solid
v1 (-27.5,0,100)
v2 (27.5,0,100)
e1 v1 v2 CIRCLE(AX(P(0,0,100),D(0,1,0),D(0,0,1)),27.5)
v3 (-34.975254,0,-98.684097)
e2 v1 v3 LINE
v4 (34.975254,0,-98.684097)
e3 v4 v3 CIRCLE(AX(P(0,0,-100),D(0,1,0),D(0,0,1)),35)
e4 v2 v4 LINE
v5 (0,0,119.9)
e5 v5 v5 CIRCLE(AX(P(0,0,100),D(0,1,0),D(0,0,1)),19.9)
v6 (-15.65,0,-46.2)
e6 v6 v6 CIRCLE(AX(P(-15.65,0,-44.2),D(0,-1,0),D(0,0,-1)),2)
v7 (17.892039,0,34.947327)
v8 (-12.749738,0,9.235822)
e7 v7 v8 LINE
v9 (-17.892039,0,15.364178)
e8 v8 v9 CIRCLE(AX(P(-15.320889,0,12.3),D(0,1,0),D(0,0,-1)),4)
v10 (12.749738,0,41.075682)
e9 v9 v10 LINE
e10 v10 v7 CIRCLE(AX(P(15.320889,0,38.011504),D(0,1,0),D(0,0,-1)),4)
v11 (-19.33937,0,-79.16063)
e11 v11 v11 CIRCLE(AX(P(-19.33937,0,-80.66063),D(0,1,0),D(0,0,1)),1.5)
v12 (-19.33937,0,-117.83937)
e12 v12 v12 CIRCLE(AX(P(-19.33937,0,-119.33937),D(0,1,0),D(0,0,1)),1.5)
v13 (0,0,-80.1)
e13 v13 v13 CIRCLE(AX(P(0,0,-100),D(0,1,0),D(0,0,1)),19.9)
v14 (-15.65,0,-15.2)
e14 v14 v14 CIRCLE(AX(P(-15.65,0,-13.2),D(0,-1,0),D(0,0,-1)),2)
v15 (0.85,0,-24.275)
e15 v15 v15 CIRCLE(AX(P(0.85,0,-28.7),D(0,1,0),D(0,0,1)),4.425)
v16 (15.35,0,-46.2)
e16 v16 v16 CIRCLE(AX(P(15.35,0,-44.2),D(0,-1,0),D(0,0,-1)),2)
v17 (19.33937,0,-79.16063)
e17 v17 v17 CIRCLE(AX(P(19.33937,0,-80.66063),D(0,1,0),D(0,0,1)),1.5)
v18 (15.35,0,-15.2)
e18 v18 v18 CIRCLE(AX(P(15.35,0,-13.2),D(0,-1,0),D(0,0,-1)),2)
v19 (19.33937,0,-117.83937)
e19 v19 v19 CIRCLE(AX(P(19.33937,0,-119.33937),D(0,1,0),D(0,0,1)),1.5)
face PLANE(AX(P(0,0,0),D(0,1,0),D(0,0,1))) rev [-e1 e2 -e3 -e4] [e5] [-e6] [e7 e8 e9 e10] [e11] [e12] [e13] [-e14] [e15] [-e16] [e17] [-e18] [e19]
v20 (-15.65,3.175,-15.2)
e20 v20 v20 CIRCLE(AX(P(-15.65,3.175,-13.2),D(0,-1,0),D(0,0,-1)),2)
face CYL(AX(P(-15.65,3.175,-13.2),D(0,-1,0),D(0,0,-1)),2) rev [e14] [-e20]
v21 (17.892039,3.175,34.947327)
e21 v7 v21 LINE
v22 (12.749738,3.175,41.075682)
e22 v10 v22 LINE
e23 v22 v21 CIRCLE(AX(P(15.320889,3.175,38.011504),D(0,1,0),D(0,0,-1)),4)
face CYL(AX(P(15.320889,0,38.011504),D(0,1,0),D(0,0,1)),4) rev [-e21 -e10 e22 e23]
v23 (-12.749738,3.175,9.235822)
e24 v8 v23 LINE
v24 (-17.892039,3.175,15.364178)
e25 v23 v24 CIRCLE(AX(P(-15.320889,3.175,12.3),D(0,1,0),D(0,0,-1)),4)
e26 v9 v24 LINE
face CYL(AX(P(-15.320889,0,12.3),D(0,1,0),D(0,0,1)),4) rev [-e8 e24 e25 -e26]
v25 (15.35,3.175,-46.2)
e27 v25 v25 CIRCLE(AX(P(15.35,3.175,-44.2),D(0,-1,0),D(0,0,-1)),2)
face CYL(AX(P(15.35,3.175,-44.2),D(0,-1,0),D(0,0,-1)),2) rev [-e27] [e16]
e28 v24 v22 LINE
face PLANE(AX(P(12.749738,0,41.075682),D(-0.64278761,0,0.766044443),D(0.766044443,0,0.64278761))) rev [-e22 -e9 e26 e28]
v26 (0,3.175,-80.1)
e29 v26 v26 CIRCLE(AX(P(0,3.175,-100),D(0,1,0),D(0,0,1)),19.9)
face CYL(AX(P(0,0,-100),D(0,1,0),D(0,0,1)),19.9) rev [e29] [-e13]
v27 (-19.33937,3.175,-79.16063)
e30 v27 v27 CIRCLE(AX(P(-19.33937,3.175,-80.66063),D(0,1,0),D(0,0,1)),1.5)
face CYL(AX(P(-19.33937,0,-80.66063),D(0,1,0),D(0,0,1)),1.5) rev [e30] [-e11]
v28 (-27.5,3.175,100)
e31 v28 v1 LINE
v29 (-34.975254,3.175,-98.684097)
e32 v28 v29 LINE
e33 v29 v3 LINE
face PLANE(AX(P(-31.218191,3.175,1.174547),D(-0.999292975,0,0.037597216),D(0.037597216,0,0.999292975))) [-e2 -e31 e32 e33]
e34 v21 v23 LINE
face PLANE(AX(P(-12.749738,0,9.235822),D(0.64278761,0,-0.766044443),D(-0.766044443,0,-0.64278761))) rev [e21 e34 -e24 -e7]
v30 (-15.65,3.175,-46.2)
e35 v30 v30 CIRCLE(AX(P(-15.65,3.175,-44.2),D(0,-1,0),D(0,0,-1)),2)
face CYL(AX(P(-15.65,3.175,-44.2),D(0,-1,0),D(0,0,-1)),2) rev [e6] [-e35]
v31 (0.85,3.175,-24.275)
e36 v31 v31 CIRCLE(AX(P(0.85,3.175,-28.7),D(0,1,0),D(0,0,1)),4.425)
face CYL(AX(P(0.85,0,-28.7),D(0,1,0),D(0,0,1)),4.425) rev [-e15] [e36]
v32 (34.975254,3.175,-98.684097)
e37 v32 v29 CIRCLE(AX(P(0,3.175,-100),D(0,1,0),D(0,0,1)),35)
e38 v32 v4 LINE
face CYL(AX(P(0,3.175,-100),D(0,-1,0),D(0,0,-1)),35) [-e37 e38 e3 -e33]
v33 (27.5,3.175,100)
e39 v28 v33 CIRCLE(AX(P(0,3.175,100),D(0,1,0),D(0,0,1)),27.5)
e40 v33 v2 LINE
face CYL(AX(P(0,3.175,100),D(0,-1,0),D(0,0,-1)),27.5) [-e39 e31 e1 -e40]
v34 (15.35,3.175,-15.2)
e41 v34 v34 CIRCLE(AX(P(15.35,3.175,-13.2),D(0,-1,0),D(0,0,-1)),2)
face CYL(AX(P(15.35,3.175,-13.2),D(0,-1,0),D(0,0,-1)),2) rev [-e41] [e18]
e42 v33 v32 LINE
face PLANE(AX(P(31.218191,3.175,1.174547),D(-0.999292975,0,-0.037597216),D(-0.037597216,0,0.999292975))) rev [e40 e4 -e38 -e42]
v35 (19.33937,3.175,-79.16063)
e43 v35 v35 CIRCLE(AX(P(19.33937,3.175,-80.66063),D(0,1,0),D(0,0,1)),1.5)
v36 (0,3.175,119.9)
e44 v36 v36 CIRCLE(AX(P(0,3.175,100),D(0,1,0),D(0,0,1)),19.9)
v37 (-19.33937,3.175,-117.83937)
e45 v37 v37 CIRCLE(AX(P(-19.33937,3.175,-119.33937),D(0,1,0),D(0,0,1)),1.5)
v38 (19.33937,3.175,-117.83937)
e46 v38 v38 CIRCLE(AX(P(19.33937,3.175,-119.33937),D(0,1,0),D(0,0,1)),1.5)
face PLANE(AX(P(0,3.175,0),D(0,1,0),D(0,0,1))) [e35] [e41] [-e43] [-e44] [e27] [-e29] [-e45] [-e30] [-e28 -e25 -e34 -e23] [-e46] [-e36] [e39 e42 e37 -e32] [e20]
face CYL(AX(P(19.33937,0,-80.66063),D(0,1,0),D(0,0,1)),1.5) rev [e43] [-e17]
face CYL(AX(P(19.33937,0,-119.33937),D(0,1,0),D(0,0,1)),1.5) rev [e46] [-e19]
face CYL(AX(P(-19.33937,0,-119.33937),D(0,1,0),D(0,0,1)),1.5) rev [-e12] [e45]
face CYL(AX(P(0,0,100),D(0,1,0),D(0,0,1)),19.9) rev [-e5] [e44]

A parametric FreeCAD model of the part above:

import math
import FreeCAD as App
import Part
import Sketcher
Q = App.Units.Quantity

doc = App.newDocument("Part")
body = doc.addObject("PartDesign::Body", "Body")

# Sketch on XZ plane
sketch1 = doc.addObject("Sketcher::SketchObject", "Sketch")
body.addObject(sketch1)
sketch1.AttachmentSupport = (doc.XZ_Plane, [""])
sketch1.MapMode = "FlatFace"
sketch1.addGeometry(Part.LineSegment(App.Vector(-35, -99, 0), App.Vector(-28, 100, 0)), False)
sketch1.addGeometry(Part.ArcOfCircle(Part.Circle(App.Vector(0, 100, 0), App.Vector(0, 0, 1), 28), math.radians(0), math.radians(180)), False)
sketch1.addGeometry(Part.LineSegment(App.Vector(28, 100, 0), App.Vector(35, -99, 0)), False)
sketch1.addGeometry(Part.ArcOfCircle(Part.Circle(App.Vector(0, -100, 0), App.Vector(0, 0, 1), 35), math.radians(178), math.radians(362)), False)
sketch1.addConstraint(Sketcher.Constraint("Coincident", 0, 2, 1, 2))
sketch1.addConstraint(Sketcher.Constraint("Coincident", 1, 1, 2, 1))
sketch1.addConstraint(Sketcher.Constraint("Tangent", 2, 2, 3, 2))
sketch1.addConstraint(Sketcher.Constraint("Tangent", 3, 1, 0, 1))
sketch1.addConstraint(Sketcher.Constraint("Symmetric", 1, 3, 3, 3, -1, 1))
sketch1.addConstraint(Sketcher.Constraint("Symmetric", 0, 2, 1, 1, -2))
sketch1.addConstraint(Sketcher.Constraint("Horizontal", 1, 3, 0, 2))
sketch1.addConstraint(Sketcher.Constraint("Radius", 3, 35.0))
sketch1.addConstraint(Sketcher.Constraint("Radius", 1, 27.5))
sketch1.addConstraint(Sketcher.Constraint("DistanceY", -1, 1, 1, 3, 100.0))
pad1 = doc.addObject("PartDesign::Pad", "Pad")
body.addObject(pad1)
pad1.Profile = sketch1
pad1.Length = 3.175
pad1.Reversed = True

# Sketch on XZ plane
sketch2 = doc.addObject("Sketcher::SketchObject", "Sketch001")
body.addObject(sketch2)
sketch2.AttachmentSupport = (doc.XZ_Plane, [""])
sketch2.MapMode = "FlatFace"
sketch2.AttachmentOffset = App.Placement(App.Vector(0, 0, -3.175), App.Rotation())
sketch2.addGeometry(Part.Circle(App.Vector(0, 100, 0), App.Vector(0, 0, 1), 20), False)
sketch2.addGeometry(Part.Circle(App.Vector(0, -100, 0), App.Vector(0, 0, 1), 20), False)
sketch2.addConstraint(Sketcher.Constraint("Equal", 0, 1))
sketch2.addConstraint(Sketcher.Constraint("Symmetric", 0, 3, 1, 3, -1, 1))
sketch2.addConstraint(Sketcher.Constraint("PointOnObject", 0, 3, -2))
sketch2.addConstraint(Sketcher.Constraint("Diameter", 0, 39.8))
sketch2.addConstraint(Sketcher.Constraint("DistanceY", -1, 1, 0, 3, 100.0))
pocket1 = doc.addObject("PartDesign::Pocket", "Pocket")
body.addObject(pocket1)
pocket1.Profile = sketch2
pocket1.Type = "ThroughAll"
pocket1.Reversed = True

# Sketch on XZ plane
sketch3 = doc.addObject("Sketcher::SketchObject", "Sketch002")
body.addObject(sketch3)
sketch3.AttachmentSupport = (doc.XZ_Plane, [""])
sketch3.MapMode = "FlatFace"
sketch3.AttachmentOffset = App.Placement(App.Vector(0, 0, -3.175), App.Rotation())
sketch3.addGeometry(Part.Circle(App.Vector(19.3, -80.7, 0), App.Vector(0, 0, 1), 1.5), False)
sketch3.addGeometry(Part.Circle(App.Vector(19.3, -119.3, 0), App.Vector(0, 0, 1), 1.5), False)
sketch3.addGeometry(Part.Circle(App.Vector(-19.3, -119.3, 0), App.Vector(0, 0, 1), 1.5), False)
sketch3.addGeometry(Part.Circle(App.Vector(-19.3, -80.7, 0), App.Vector(0, 0, 1), 1.5), False)
sketch3.addConstraint(Sketcher.Constraint("Equal", 0, 1))
sketch3.addConstraint(Sketcher.Constraint("Equal", 1, 2))
sketch3.addConstraint(Sketcher.Constraint("Equal", 2, 3))
sketch3.addConstraint(Sketcher.Constraint("Symmetric", 1, 3, 2, 3, -2))
sketch3.addConstraint(Sketcher.Constraint("Symmetric", 0, 3, 3, 3, -2))
sketch3.addConstraint(Sketcher.Constraint("Vertical", 0, 3, 1, 3))
sketch3.addConstraint(Sketcher.Constraint("Diameter", 0, 3.0))
sketch3.addConstraint(Sketcher.Constraint("DistanceX", -1, 1, 0, 3, 19.33937))
sketch3.addConstraint(Sketcher.Constraint("DistanceY", 0, 3, -1, 1, 80.66063))
sketch3.addConstraint(Sketcher.Constraint("DistanceY", 1, 3, -1, 1, 119.33937))
pocket2 = doc.addObject("PartDesign::Pocket", "Pocket001")
body.addObject(pocket2)
pocket2.Profile = sketch3
pocket2.Type = "ThroughAll"
pocket2.Reversed = True

# Sketch on XZ plane
sketch4 = doc.addObject("Sketcher::SketchObject", "Sketch003")
body.addObject(sketch4)
sketch4.AttachmentSupport = (doc.XZ_Plane, [""])
sketch4.MapMode = "FlatFace"
sketch4.AttachmentOffset = App.Placement(App.Vector(0, 0, -3.175), App.Rotation())
sketch4.addGeometry(Part.Circle(App.Vector(0.8, -28.7, 0), App.Vector(0, 0, 1), 4.4), False)
sketch4.addConstraint(Sketcher.Constraint("Diameter", 0, 8.85))
sketch4.addConstraint(Sketcher.Constraint("DistanceY", 0, 3, -1, 1, 28.7))
sketch4.addConstraint(Sketcher.Constraint("DistanceX", -1, 1, 0, 3, 0.85))
pocket3 = doc.addObject("PartDesign::Pocket", "Pocket002")
body.addObject(pocket3)
pocket3.Profile = sketch4
pocket3.Type = "ThroughAll"
pocket3.Reversed = True

# Sketch on XZ plane
sketch5 = doc.addObject("Sketcher::SketchObject", "Sketch004")
body.addObject(sketch5)
sketch5.AttachmentSupport = (doc.XZ_Plane, [""])
sketch5.MapMode = "FlatFace"
sketch5.AttachmentOffset = App.Placement(App.Vector(0, 0, -3.175), App.Rotation())
sketch5.addGeometry(Part.LineSegment(App.Vector(-17.9, 15.4, 0), App.Vector(12.7, 41.1, 0)), False)
sketch5.addGeometry(Part.ArcOfCircle(Part.Circle(App.Vector(15.3, 38, 0), App.Vector(0, 0, 1), 4), math.radians(-50), math.radians(130)), False)
sketch5.addGeometry(Part.LineSegment(App.Vector(17.9, 34.9, 0), App.Vector(-12.7, 9.2, 0)), False)
sketch5.addGeometry(Part.ArcOfCircle(Part.Circle(App.Vector(-15.3, 12.3, 0), App.Vector(0, 0, 1), 4), math.radians(130), math.radians(310)), False)
sketch5.addConstraint(Sketcher.Constraint("Tangent", 0, 2, 1, 2))
sketch5.addConstraint(Sketcher.Constraint("Tangent", 1, 1, 2, 1))
sketch5.addConstraint(Sketcher.Constraint("Tangent", 2, 2, 3, 2))
sketch5.addConstraint(Sketcher.Constraint("Tangent", 3, 1, 0, 1))
sketch5.addConstraint(Sketcher.Constraint("Equal", 1, 3))
sketch5.addConstraint(Sketcher.Constraint("Radius", 1, 4.0))
sketch5.addConstraint(Sketcher.Constraint("Angle", 0, Q("40 deg")))
sketch5.addConstraint(Sketcher.Constraint("Distance", 0, 40.0))
sketch5.addConstraint(Sketcher.Constraint("DistanceY", -1, 1, 3, 3, 12.3))
sketch5.addConstraint(Sketcher.Constraint("DistanceX", -1, 1, 1, 3, 15.320889))
pocket4 = doc.addObject("PartDesign::Pocket", "Pocket003")
body.addObject(pocket4)
pocket4.Profile = sketch5
pocket4.Type = "ThroughAll"
pocket4.Reversed = True

# Sketch on XZ plane
sketch6 = doc.addObject("Sketcher::SketchObject", "Sketch005")
body.addObject(sketch6)
sketch6.AttachmentSupport = (doc.XZ_Plane, [""])
sketch6.MapMode = "FlatFace"
sketch6.addGeometry(Part.Circle(App.Vector(15.3, -13.2, 0), App.Vector(0, 0, 1), 2), False)
sketch6.addGeometry(Part.Circle(App.Vector(15.3, -44.2, 0), App.Vector(0, 0, 1), 2), False)
sketch6.addGeometry(Part.Circle(App.Vector(-15.7, -44.2, 0), App.Vector(0, 0, 1), 2), False)
sketch6.addGeometry(Part.Circle(App.Vector(-15.7, -13.2, 0), App.Vector(0, 0, 1), 2), False)
sketch6.addConstraint(Sketcher.Constraint("Equal", 0, 1))
sketch6.addConstraint(Sketcher.Constraint("Equal", 1, 2))
sketch6.addConstraint(Sketcher.Constraint("Equal", 2, 3))
sketch6.addConstraint(Sketcher.Constraint("Horizontal", 1, 3, 2, 3))
sketch6.addConstraint(Sketcher.Constraint("Horizontal", 0, 3, 3, 3))
sketch6.addConstraint(Sketcher.Constraint("Vertical", 0, 3, 1, 3))
sketch6.addConstraint(Sketcher.Constraint("Vertical", 2, 3, 3, 3))
sketch6.addConstraint(Sketcher.Constraint("Diameter", 0, 4.0))
sketch6.addConstraint(Sketcher.Constraint("DistanceY", 1, 3, 0, 3, 31.0))
sketch6.addConstraint(Sketcher.Constraint("DistanceX", 2, 3, 1, 3, 31.0))
sketch6.addConstraint(Sketcher.Constraint("DistanceY", 0, 3, -1, 1, 13.2))
sketch6.addConstraint(Sketcher.Constraint("DistanceX", -1, 1, 0, 3, 15.35))
pocket5 = doc.addObject("PartDesign::Pocket", "Pocket004")
body.addObject(pocket5)
pocket5.Profile = sketch6
pocket5.Type = "ThroughAll"

doc.recompute()
